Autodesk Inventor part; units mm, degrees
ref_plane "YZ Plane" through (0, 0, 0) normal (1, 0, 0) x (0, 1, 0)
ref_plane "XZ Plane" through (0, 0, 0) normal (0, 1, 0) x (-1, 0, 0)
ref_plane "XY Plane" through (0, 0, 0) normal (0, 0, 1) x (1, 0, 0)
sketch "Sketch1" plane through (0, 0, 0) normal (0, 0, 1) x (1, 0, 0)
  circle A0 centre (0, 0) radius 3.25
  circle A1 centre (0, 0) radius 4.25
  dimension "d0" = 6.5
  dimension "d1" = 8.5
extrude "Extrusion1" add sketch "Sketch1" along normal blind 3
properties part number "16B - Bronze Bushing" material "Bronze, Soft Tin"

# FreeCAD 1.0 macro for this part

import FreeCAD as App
import Part
import Sketcher

V = App.Vector

doc = App.newDocument("Part")
body = doc.addObject("PartDesign::Body", "Body")

# Sketch on XY plane
sketch1 = doc.addObject("Sketcher::SketchObject", "Sketch")
body.addObject(sketch1)
sketch1.AttachmentSupport = (doc.XY_Plane, [""])
sketch1.MapMode = "FlatFace"
sketch1.addGeometry(Part.Circle(V(0, 0, 0), V(0, 0, 1), 4.2), False)
sketch1.addGeometry(Part.Circle(V(0, 0, 0), V(0, 0, 1), 3.2), False)
sketch1.addConstraint(Sketcher.Constraint("Coincident", 0, 3, -1, 1))
sketch1.addConstraint(Sketcher.Constraint("Coincident", 1, 3, -1, 1))
sketch1.addConstraint(Sketcher.Constraint("Diameter", 0, 8.5))
sketch1.addConstraint(Sketcher.Constraint("Diameter", 1, 6.5))
pad1 = doc.addObject("PartDesign::Pad", "Pad")
body.addObject(pad1)
pad1.Profile = sketch1
pad1.Length = 3

doc.recompute()
